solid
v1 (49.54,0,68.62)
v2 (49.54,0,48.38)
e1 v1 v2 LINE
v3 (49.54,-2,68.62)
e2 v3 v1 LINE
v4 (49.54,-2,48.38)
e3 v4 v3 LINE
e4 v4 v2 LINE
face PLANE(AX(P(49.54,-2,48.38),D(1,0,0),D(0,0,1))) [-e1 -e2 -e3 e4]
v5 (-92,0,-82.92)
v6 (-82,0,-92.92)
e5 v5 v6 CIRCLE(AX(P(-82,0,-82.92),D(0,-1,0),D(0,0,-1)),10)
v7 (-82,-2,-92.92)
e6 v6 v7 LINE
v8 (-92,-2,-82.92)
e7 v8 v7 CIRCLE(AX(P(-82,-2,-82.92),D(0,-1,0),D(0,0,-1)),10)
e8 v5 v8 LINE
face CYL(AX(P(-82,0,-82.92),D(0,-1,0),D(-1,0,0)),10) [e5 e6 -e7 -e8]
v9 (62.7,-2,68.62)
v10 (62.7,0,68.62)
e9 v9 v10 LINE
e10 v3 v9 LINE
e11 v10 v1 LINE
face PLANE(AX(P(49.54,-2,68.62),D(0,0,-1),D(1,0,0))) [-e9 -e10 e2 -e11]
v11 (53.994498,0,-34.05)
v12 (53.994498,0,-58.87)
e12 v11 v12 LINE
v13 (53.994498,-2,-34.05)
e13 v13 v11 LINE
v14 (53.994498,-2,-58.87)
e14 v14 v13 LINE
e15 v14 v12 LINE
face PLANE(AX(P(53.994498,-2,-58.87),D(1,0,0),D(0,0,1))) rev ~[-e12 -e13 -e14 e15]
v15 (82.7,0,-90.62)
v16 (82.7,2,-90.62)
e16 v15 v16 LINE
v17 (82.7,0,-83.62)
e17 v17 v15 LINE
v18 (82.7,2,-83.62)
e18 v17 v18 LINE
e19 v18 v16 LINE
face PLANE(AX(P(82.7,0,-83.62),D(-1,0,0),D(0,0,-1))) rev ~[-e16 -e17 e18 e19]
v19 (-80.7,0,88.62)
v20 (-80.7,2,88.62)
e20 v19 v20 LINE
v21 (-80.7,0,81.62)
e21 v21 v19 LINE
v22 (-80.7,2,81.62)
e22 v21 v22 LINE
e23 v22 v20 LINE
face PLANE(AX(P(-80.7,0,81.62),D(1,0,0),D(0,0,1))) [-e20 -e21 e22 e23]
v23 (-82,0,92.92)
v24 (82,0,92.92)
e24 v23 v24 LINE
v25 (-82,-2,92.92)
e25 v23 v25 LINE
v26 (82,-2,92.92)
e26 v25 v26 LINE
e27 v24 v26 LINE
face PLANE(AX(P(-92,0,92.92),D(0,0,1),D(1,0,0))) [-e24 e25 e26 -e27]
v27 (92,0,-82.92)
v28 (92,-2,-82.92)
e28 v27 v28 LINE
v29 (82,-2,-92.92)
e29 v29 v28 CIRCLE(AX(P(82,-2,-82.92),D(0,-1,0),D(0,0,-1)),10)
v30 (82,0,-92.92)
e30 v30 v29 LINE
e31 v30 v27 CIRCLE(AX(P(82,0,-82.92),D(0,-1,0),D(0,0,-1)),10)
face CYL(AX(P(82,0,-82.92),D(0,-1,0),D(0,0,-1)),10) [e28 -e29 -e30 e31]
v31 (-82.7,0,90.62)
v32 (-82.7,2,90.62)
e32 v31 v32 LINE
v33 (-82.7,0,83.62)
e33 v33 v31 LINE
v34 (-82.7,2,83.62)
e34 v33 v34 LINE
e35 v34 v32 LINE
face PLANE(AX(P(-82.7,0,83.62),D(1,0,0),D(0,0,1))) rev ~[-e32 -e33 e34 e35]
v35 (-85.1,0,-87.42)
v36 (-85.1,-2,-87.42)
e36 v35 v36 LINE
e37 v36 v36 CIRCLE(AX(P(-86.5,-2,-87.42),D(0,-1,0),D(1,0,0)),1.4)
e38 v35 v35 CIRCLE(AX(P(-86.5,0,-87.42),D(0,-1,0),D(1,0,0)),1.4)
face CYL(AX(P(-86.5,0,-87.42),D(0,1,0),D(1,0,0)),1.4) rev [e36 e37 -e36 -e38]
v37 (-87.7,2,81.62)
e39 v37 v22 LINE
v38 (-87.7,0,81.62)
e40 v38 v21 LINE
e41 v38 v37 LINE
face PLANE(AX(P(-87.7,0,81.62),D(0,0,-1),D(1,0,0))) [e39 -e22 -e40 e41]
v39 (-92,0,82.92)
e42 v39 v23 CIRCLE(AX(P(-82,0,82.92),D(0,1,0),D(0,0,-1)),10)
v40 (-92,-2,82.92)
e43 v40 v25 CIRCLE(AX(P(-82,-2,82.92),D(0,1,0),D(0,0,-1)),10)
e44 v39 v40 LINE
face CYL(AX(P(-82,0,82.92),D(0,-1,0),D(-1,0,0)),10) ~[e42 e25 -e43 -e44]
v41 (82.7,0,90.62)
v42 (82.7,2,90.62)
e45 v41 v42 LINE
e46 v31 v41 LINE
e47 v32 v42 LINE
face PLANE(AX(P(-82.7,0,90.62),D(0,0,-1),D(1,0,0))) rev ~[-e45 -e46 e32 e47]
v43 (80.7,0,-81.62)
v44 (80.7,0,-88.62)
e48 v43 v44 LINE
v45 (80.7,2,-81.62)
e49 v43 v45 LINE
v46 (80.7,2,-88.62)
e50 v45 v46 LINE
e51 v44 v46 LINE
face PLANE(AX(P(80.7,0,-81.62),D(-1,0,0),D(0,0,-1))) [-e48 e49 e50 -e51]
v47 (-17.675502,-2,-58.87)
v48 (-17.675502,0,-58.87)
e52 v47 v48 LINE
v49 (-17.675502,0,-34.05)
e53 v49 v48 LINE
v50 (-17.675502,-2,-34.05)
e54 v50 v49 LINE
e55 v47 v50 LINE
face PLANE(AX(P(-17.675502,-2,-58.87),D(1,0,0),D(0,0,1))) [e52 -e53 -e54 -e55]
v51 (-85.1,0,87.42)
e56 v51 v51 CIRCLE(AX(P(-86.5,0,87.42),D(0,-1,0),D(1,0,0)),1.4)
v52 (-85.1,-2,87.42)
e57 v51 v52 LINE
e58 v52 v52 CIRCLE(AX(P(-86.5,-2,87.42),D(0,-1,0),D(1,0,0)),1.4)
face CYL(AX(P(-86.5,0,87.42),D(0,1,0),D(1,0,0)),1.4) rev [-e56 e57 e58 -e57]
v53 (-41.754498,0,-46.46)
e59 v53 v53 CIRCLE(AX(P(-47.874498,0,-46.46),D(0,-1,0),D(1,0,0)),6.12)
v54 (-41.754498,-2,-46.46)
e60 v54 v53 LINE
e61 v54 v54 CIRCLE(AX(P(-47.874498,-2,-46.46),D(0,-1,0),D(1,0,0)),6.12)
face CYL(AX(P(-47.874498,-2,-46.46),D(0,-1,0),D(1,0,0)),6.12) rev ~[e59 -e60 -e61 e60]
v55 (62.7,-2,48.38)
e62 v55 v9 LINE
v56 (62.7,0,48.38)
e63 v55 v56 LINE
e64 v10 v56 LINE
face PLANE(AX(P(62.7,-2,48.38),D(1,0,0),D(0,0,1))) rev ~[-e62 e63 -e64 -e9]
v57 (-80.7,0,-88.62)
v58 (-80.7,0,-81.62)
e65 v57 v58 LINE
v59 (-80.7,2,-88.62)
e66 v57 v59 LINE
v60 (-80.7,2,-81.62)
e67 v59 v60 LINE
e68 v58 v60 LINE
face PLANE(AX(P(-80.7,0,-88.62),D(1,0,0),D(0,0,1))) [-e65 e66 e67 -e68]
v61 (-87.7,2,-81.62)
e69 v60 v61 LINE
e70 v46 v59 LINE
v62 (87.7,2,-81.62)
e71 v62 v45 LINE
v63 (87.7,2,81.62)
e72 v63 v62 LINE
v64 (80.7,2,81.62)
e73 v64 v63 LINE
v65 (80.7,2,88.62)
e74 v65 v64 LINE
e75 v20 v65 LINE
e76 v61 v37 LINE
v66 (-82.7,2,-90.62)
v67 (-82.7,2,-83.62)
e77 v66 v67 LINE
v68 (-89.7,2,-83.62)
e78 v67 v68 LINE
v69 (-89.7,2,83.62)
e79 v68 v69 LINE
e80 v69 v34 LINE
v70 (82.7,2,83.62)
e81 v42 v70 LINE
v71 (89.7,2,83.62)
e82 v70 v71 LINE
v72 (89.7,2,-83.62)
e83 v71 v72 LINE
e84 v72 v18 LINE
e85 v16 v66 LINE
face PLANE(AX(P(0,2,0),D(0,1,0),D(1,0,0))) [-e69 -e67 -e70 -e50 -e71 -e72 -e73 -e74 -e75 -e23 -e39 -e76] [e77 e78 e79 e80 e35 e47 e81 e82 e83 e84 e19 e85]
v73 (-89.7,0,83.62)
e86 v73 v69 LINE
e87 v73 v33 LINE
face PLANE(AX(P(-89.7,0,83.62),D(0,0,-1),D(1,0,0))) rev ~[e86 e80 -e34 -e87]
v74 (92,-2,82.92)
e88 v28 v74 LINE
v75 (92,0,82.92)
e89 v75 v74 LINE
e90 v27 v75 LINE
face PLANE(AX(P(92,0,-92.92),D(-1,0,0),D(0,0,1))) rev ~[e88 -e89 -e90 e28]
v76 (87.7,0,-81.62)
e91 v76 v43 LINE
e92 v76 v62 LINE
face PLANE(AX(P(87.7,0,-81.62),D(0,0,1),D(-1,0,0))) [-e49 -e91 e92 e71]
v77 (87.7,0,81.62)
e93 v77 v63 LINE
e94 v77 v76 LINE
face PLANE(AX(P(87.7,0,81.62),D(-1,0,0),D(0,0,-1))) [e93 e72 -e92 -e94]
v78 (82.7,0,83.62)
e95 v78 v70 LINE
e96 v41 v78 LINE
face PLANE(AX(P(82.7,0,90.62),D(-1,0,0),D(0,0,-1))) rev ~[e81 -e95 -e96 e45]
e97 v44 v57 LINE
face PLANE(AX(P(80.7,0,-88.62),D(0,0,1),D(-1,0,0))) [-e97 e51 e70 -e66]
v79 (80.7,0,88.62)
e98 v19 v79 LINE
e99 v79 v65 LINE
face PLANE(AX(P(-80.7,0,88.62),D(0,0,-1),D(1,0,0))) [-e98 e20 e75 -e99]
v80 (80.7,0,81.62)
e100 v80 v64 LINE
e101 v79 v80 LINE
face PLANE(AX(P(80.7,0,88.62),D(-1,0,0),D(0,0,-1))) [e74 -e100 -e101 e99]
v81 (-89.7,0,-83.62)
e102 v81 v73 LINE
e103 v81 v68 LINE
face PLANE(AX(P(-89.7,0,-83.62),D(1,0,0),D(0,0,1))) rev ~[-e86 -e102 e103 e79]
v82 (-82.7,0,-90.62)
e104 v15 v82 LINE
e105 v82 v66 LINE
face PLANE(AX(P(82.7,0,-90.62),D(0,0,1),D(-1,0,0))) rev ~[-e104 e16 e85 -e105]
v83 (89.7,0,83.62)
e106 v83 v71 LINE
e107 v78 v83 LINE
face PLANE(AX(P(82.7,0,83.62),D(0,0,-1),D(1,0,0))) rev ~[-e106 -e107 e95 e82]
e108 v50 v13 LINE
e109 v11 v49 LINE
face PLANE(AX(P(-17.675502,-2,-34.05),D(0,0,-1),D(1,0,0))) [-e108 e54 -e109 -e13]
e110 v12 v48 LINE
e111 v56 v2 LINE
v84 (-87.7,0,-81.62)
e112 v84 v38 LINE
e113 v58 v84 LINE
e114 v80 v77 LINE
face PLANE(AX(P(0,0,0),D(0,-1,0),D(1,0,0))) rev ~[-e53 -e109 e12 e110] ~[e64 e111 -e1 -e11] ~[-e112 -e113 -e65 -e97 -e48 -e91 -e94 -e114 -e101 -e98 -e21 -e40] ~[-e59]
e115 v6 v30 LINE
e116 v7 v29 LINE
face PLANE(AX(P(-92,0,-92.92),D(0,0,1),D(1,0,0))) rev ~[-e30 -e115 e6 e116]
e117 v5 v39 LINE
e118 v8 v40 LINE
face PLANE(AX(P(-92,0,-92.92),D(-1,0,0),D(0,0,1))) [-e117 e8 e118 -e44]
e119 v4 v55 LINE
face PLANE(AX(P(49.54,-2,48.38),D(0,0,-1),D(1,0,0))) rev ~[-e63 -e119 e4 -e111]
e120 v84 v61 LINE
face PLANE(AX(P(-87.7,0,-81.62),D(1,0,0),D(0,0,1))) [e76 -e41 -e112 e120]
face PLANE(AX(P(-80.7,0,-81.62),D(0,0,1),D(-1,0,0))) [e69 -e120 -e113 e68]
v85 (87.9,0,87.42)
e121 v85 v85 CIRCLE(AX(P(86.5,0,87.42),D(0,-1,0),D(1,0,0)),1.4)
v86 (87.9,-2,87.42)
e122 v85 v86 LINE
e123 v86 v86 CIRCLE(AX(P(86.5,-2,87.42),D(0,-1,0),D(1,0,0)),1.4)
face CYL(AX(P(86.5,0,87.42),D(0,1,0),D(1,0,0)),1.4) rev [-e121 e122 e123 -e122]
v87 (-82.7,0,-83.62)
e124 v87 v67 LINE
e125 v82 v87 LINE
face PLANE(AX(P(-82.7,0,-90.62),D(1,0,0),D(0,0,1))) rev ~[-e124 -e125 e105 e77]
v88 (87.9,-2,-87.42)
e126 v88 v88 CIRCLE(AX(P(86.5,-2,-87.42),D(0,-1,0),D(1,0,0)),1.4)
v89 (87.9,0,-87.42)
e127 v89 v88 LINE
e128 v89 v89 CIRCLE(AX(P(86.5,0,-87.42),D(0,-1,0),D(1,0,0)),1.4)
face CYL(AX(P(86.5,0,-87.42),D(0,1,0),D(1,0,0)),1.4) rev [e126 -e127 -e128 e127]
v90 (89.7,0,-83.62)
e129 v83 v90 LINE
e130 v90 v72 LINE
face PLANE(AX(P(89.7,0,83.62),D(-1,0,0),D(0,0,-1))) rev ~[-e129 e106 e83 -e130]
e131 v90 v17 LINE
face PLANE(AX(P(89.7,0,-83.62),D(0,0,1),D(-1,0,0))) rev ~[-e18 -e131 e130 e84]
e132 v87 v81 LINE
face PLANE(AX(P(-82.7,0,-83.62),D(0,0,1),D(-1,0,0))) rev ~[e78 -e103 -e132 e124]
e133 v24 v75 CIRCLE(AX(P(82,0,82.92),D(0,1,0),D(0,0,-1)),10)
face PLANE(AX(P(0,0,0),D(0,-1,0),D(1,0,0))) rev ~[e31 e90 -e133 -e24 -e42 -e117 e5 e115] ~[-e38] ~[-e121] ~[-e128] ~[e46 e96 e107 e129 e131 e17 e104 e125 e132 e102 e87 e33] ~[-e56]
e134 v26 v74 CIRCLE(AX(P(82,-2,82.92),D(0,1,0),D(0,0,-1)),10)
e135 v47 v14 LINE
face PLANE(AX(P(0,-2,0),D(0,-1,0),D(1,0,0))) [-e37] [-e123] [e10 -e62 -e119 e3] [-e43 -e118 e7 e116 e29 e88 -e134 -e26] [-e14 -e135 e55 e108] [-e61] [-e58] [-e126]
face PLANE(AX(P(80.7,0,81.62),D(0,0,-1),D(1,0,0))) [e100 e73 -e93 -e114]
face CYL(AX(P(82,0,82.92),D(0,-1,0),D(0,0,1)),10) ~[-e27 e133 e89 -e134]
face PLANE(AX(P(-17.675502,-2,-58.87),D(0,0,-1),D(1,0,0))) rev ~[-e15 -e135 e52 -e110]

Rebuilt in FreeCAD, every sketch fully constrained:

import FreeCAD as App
import Part
import Sketcher


def edges_at(feature, points):
    """Names of the edges that pass closest to the given points."""
    edges = feature.Shape.Edges
    near = lambda p: min(range(len(edges)), key=lambda i: edges[i].distToShape(Part.Vertex(*p))[0])
    return sorted({f"Edge{near(p) + 1}" for p in points})


def add_polygon(sketch, points):
    """Adds a closed chain of lines whose ends are joined by coincident constraints."""
    first, n = sketch.GeometryCount, len(points)
    for a, b in zip(points, points[1:] + points[:1]):
        sketch.addGeometry(Part.LineSegment(App.Vector(*a, 0), App.Vector(*b, 0)), False)
    for i in range(n):
        sketch.addConstraint(Sketcher.Constraint("Coincident", first + i, 2, first + (i + 1) % n, 1))

doc = App.newDocument("Part")
body = doc.addObject("PartDesign::Body", "Body")

sketch1 = body.newObject("Sketcher::SketchObject", "Sketch")
sketch1.AttachmentSupport = (doc.getObject("XZ_Plane"), [""])
sketch1.MapMode = "FlatFace"
add_polygon(sketch1, [(-83, 91), (83, 91), (83, 84), (90, 84), (90, -84), (83, -84), (83, -91), (-83, -91), (-83, -84), (-90, -84), (-90, 84), (-83, 84)])
add_polygon(sketch1, [(81, 89), (-81, 89), (-81, 82), (-88, 82), (-88, -82), (-81, -82), (-81, -89), (81, -89), (81, -82), (88, -82), (88, 82), (81, 82)])
sketch1.addConstraint(Sketcher.Constraint("Horizontal", 0))
sketch1.addConstraint(Sketcher.Constraint("Vertical", 1))
sketch1.addConstraint(Sketcher.Constraint("Horizontal", 2))
sketch1.addConstraint(Sketcher.Constraint("Vertical", 3))
sketch1.addConstraint(Sketcher.Constraint("Horizontal", 4))
sketch1.addConstraint(Sketcher.Constraint("Vertical", 5))
sketch1.addConstraint(Sketcher.Constraint("Horizontal", 6))
sketch1.addConstraint(Sketcher.Constraint("Vertical", 7))
sketch1.addConstraint(Sketcher.Constraint("Horizontal", 8))
sketch1.addConstraint(Sketcher.Constraint("Vertical", 9))
sketch1.addConstraint(Sketcher.Constraint("Horizontal", 10))
sketch1.addConstraint(Sketcher.Constraint("Vertical", 11))
sketch1.addConstraint(Sketcher.Constraint("Horizontal", 12))
sketch1.addConstraint(Sketcher.Constraint("Vertical", 13))
sketch1.addConstraint(Sketcher.Constraint("Horizontal", 14))
sketch1.addConstraint(Sketcher.Constraint("Vertical", 15))
sketch1.addConstraint(Sketcher.Constraint("Horizontal", 16))
sketch1.addConstraint(Sketcher.Constraint("Vertical", 17))
sketch1.addConstraint(Sketcher.Constraint("Horizontal", 18))
sketch1.addConstraint(Sketcher.Constraint("Vertical", 19))
sketch1.addConstraint(Sketcher.Constraint("Horizontal", 20))
sketch1.addConstraint(Sketcher.Constraint("Vertical", 21))
sketch1.addConstraint(Sketcher.Constraint("Horizontal", 22))
sketch1.addConstraint(Sketcher.Constraint("Vertical", 23))
sketch1.addConstraint(Sketcher.Constraint("Symmetric", 0, 2, 6, 2, -1, 1))
sketch1.addConstraint(Sketcher.Constraint("Symmetric", 2, 2, 8, 2, -1, 1))
sketch1.addConstraint(Sketcher.Constraint("Symmetric", 4, 2, 10, 2, -1, 1))
sketch1.addConstraint(Sketcher.Constraint("Symmetric", 12, 2, 18, 2, -1, 1))
sketch1.addConstraint(Sketcher.Constraint("Symmetric", 14, 2, 20, 2, -1, 1))
sketch1.addConstraint(Sketcher.Constraint("Symmetric", 16, 2, 22, 2, -1, 1))
sketch1.addConstraint(Sketcher.Constraint("Symmetric", 4, 2, 7, 2, -2))
sketch1.addConstraint(Sketcher.Constraint("Symmetric", 16, 2, 19, 2, -2))
sketch1.addConstraint(Sketcher.Constraint("Equal", 10, 14))
sketch1.addConstraint(Sketcher.Constraint("Equal", 22, 1))
sketch1.addConstraint(Sketcher.Constraint("Equal", 11, 13))
sketch1.addConstraint(Sketcher.Constraint("DistanceX", 2, 1, 2, 2, 7.0))
sketch1.addConstraint(Sketcher.Constraint("DistanceX", 0, 1, 0, 2, 165.4))
sketch1.addConstraint(Sketcher.Constraint("DistanceX", 12, 2, 12, 1, 161.4))
sketch1.addConstraint(Sketcher.Constraint("DistanceY", 12, 2, 11, 2, 2.0))
sketch1.addConstraint(Sketcher.Constraint("DistanceY", 3, 2, 3, 1, 167.24))
pad1 = body.newObject("PartDesign::Pad", "Pad")
pad1.Profile = sketch1
pad1.Length = 2
pad1.Reversed = True

sketch2 = body.newObject("Sketcher::SketchObject", "Sketch001")
sketch2.AttachmentSupport = (doc.getObject("XZ_Plane"), [""])
sketch2.MapMode = "FlatFace"
add_polygon(sketch2, [(-92, 92.9), (-92, -92.9), (92, -92.9), (92, 92.9)])
sketch2.addGeometry(Part.Circle(App.Vector(-86.5, -87.4, 0), App.Vector(0, 0, 1), 1.4), False)
sketch2.addGeometry(Part.Circle(App.Vector(86.5, -87.4, 0), App.Vector(0, 0, 1), 1.4), False)
sketch2.addGeometry(Part.Circle(App.Vector(-86.5, 87.4, 0), App.Vector(0, 0, 1), 1.4), False)
sketch2.addGeometry(Part.Circle(App.Vector(86.5, 87.4, 0), App.Vector(0, 0, 1), 1.4), False)
sketch2.addConstraint(Sketcher.Constraint("Vertical", 0))
sketch2.addConstraint(Sketcher.Constraint("Horizontal", 1))
sketch2.addConstraint(Sketcher.Constraint("Vertical", 2))
sketch2.addConstraint(Sketcher.Constraint("Horizontal", 3))
sketch2.addConstraint(Sketcher.Constraint("Equal", 4, 5))
sketch2.addConstraint(Sketcher.Constraint("Equal", 5, 6))
sketch2.addConstraint(Sketcher.Constraint("Equal", 6, 7))
sketch2.addConstraint(Sketcher.Constraint("Symmetric", 5, 3, 6, 3, -1, 1))
sketch2.addConstraint(Sketcher.Constraint("Symmetric", 4, 3, 7, 3, -1, 1))
sketch2.addConstraint(Sketcher.Constraint("Symmetric", 0, 2, 2, 2, -1, 1))
sketch2.addConstraint(Sketcher.Constraint("Symmetric", 4, 3, 5, 3, -2))
sketch2.addConstraint(Sketcher.Constraint("Diameter", 4, 2.8))
sketch2.addConstraint(Sketcher.Constraint("DistanceX", 1, 1, 1, 2, 184.0))
sketch2.addConstraint(Sketcher.Constraint("DistanceX", 4, 3, 5, 3, 173.0))
sketch2.addConstraint(Sketcher.Constraint("DistanceY", 0, 2, 0, 1, 185.84))
sketch2.addConstraint(Sketcher.Constraint("DistanceY", 0, 2, 4, 3, 5.5))
pad2 = body.newObject("PartDesign::Pad", "Pad001")
pad2.Profile = sketch2
pad2.Length = 2
doc.recompute()

fillet = body.newObject("PartDesign::Fillet", "Fillet")
fillet.Base = (pad2, edges_at(pad2, [
    (-92, -1, 92.92),
    (-92, -1, -92.92),
    (92, -1, -92.92),
    (92, -1, 92.92),
]))
fillet.Radius = 10

sketch3 = body.newObject("Sketcher::SketchObject", "Sketch002")
sketch3.AttachmentSupport = (doc.getObject("XZ_Plane"), [""])
sketch3.MapMode = "FlatFace"
sketch3.AttachmentOffset = App.Placement(App.Vector(0, 0, 2), App.Rotation())
sketch3.addGeometry(Part.Circle(App.Vector(-48, -46, 0), App.Vector(0, 0, 1), 6), False)
sketch3.addConstraint(Sketcher.Constraint("Diameter", 0, 12.24))
sketch3.addConstraint(Sketcher.Constraint("DistanceY", 0, 3, -1, 1, 46.46))
sketch3.addConstraint(Sketcher.Constraint("DistanceX", 0, 3, -1, 1, 47.874498))
pocket1 = body.newObject("PartDesign::Pocket", "Pocket")
pocket1.Profile = sketch3
pocket1.Type = "UpToFirst"

sketch4 = body.newObject("Sketcher::SketchObject", "Sketch003")
sketch4.AttachmentSupport = (doc.getObject("XZ_Plane"), [""])
sketch4.MapMode = "FlatFace"
sketch4.AttachmentOffset = App.Placement(App.Vector(0, 0, 2), App.Rotation())
add_polygon(sketch4, [(-18, -34), (-18, -59), (54, -59), (54, -34)])
sketch4.addConstraint(Sketcher.Constraint("Vertical", 0))
sketch4.addConstraint(Sketcher.Constraint("Horizontal", 1))
sketch4.addConstraint(Sketcher.Constraint("Vertical", 2))
sketch4.addConstraint(Sketcher.Constraint("Horizontal", 3))
sketch4.addConstraint(Sketcher.Constraint("DistanceX", 1, 1, 1, 2, 71.67))
sketch4.addConstraint(Sketcher.Constraint("DistanceY", 0, 2, 0, 1, 24.82))
sketch4.addConstraint(Sketcher.Constraint("DistanceY", 0, 2, -1, 1, 58.87))
sketch4.addConstraint(Sketcher.Constraint("DistanceX", 0, 2, -1, 1, 17.675502))
pocket2 = body.newObject("PartDesign::Pocket", "Pocket001")
pocket2.Profile = sketch4
pocket2.Type = "UpToFirst"

sketch5 = body.newObject("Sketcher::SketchObject", "Sketch004")
sketch5.AttachmentSupport = (doc.getObject("XZ_Plane"), [""])
sketch5.MapMode = "FlatFace"
sketch5.AttachmentOffset = App.Placement(App.Vector(0, 0, 2), App.Rotation())
add_polygon(sketch5, [(50, 69), (50, 48), (63, 48), (63, 69)])
sketch5.addConstraint(Sketcher.Constraint("Vertical", 0))
sketch5.addConstraint(Sketcher.Constraint("Horizontal", 1))
sketch5.addConstraint(Sketcher.Constraint("Vertical", 2))
sketch5.addConstraint(Sketcher.Constraint("Horizontal", 3))
sketch5.addConstraint(Sketcher.Constraint("DistanceX", 1, 1, 1, 2, 13.16))
sketch5.addConstraint(Sketcher.Constraint("DistanceY", 0, 2, 0, 1, 20.24))
sketch5.addConstraint(Sketcher.Constraint("DistanceX", -1, 1, 1, 2, 62.7))
sketch5.addConstraint(Sketcher.Constraint("DistanceY", -1, 1, 0, 2, 48.38))
pocket3 = body.newObject("PartDesign::Pocket", "Pocket002")
pocket3.Profile = sketch5
pocket3.Type = "UpToFirst"

doc.recompute()
